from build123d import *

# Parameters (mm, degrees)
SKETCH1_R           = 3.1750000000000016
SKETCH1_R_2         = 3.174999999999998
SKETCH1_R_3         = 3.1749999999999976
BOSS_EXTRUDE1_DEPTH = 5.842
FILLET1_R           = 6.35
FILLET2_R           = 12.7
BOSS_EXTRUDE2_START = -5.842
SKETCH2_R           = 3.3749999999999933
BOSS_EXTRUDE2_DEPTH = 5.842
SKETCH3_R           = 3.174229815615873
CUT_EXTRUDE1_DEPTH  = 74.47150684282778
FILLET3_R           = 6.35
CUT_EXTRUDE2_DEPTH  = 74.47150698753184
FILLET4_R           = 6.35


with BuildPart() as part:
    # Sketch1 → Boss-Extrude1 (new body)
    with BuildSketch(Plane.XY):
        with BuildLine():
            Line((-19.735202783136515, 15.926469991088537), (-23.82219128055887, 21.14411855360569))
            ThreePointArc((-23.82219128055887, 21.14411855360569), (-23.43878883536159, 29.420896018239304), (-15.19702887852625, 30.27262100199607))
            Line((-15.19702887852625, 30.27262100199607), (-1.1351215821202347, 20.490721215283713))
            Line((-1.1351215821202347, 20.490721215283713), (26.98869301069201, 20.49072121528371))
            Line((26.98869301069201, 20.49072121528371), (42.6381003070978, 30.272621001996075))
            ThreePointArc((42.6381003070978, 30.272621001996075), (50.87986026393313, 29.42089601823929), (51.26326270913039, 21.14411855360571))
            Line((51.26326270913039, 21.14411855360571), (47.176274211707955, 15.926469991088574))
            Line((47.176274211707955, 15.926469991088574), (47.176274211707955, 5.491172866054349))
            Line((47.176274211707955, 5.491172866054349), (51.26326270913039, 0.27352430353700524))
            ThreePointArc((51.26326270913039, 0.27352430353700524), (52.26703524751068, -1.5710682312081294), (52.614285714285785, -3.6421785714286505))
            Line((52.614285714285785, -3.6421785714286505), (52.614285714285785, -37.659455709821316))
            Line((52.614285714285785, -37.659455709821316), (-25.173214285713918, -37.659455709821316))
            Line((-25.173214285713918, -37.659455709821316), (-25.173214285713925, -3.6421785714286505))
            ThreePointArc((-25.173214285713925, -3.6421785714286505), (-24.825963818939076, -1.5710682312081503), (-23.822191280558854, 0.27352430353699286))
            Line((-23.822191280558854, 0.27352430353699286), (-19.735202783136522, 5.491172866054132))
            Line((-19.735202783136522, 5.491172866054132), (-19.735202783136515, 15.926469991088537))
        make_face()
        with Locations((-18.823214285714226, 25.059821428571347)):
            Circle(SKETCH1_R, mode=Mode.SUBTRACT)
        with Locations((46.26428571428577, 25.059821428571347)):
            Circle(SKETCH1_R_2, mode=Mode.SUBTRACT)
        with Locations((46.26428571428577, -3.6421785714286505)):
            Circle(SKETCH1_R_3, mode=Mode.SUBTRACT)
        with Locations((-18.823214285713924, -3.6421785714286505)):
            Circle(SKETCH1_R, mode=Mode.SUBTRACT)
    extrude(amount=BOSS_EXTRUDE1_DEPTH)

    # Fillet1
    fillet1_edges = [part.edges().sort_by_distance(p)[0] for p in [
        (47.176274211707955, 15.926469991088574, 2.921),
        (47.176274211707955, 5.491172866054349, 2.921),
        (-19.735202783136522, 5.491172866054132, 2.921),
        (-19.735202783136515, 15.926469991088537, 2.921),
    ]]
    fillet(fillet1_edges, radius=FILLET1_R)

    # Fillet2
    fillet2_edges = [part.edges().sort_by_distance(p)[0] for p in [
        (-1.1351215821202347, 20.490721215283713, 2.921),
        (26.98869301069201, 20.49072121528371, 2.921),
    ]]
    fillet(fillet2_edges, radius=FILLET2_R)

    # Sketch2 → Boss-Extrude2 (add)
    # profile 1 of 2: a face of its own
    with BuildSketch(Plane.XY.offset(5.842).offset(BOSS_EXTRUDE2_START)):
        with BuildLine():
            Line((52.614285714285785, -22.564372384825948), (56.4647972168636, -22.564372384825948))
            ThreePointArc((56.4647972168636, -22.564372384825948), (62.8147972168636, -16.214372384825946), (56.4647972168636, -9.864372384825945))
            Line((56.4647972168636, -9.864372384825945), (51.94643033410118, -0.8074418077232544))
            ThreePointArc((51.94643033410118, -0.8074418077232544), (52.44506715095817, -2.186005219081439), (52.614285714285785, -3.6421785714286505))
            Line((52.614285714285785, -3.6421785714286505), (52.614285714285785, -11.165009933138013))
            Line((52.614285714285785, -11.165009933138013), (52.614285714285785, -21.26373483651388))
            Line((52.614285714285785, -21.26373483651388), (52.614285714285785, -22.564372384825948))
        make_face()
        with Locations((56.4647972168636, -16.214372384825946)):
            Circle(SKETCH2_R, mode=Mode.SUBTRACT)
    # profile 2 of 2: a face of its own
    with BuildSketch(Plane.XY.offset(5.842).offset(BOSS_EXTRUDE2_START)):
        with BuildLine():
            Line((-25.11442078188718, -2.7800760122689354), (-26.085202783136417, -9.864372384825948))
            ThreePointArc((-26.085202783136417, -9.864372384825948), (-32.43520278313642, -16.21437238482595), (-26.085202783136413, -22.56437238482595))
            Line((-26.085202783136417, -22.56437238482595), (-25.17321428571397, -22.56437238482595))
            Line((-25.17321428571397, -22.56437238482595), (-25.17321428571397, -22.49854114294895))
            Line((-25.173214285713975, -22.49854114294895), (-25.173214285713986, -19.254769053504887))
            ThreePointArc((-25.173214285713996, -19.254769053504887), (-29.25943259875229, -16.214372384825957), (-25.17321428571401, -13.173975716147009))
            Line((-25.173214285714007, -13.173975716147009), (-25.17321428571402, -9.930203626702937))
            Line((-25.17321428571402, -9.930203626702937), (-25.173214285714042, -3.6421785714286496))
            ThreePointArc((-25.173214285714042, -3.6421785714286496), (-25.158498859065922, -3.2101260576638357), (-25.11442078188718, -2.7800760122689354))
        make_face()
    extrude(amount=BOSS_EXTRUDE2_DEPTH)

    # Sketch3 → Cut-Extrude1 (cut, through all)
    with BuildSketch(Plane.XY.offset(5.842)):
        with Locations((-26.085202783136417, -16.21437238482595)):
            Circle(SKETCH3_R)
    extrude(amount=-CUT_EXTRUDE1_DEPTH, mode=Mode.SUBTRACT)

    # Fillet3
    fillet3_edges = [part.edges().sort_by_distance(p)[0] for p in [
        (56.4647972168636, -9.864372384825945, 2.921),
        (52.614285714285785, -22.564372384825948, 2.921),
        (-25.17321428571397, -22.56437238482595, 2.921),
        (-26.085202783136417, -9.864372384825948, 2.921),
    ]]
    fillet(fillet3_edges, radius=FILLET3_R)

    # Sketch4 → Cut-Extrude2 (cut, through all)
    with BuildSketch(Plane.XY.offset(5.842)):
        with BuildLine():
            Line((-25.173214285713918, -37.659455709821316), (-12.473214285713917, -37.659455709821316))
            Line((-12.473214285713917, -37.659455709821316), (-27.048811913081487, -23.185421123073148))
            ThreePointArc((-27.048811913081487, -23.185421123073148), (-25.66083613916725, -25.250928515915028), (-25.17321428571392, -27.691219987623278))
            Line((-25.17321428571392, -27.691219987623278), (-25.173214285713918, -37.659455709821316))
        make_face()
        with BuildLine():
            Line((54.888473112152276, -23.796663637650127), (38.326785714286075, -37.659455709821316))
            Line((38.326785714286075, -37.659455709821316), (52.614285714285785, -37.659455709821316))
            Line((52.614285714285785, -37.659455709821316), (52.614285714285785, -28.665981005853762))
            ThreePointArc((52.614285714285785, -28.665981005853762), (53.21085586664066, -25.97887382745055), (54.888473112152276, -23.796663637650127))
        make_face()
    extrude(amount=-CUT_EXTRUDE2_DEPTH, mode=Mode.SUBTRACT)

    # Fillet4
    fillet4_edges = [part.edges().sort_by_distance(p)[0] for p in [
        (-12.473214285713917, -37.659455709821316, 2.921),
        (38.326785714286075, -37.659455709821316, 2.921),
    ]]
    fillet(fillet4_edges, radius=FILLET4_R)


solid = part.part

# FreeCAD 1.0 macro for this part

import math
import FreeCAD as App
import Part
import Sketcher
from FreeCAD import Vector
Q = App.Units.Quantity


def edges_at(feature, points):
    """Names of the edges that pass closest to the given points."""
    edges = feature.Shape.Edges
    near = lambda p: min(range(len(edges)), key=lambda i: edges[i].distToShape(Part.Vertex(*p))[0])
    return sorted({f"Edge{near(p) + 1}" for p in points})

doc = App.newDocument("Part")
params = doc.addObject("Spreadsheet::Sheet", "Params")
for row, (alias, value) in enumerate([
    ("sketch1_diameter", "0.25 in"),
    ("sketch1_radius", "0.25 in"),
    ("sketch1_width", "3.0625 in"),
    ("pad1_length", "0.23 in"),
    ("fillet_radius", "0.25 in"),
    ("fillet2_radius", "0.5 in"),
    ("sketch2_radius", "0.25 in"),
    ("pad2_length", "0.23 in"),
    ("fillet3_radius", "0.25 in"),
    ("sketch4_radius", "0.25 in"),
    ("sketch4_width", "0.5 in"),
    ("sketch4_width2", "0.5625 in"),
    ("fillet4_radius", "0.25 in"),
], start=1):
    params.set(f"A{row}", alias)
    params.set(f"B{row}", "=" + value)
    params.setAlias(f"B{row}", alias)

body = doc.addObject("PartDesign::Body", "Body")

sketch1 = body.newObject("Sketcher::SketchObject", "Sketch")
sketch1.AttachmentSupport = (doc.getObject("XY_Plane"), [""])
sketch1.MapMode = "FlatFace"
sketch1.addGeometry(Part.LineSegment(Vector(-23.8, 21.1, 0), Vector(-19.7, 15.9, 0)), False)
sketch1.addGeometry(Part.LineSegment(Vector(-19.7, 15.9, 0), Vector(-19.7, 5.5, 0)), False)
sketch1.addGeometry(Part.LineSegment(Vector(-19.7, 5.5, 0), Vector(-23.8, 0.3, 0)), False)
sketch1.addGeometry(Part.ArcOfCircle(Part.Circle(Vector(-18.8, -3.6, 0), Vector(0, 0, 1), 6.3), math.radians(142), math.radians(180)), False)
sketch1.addGeometry(Part.LineSegment(Vector(-25.2, -3.6, 0), Vector(-25.2, -37.7, 0)), False)
sketch1.addGeometry(Part.LineSegment(Vector(-25.2, -37.7, 0), Vector(52.6, -37.7, 0)), False)
sketch1.addGeometry(Part.LineSegment(Vector(52.6, -37.7, 0), Vector(52.6, -3.6, 0)), False)
sketch1.addGeometry(Part.ArcOfCircle(Part.Circle(Vector(46.3, -3.6, 0), Vector(0, 0, 1), 6.3), math.radians(0), math.radians(38)), False)
sketch1.addGeometry(Part.LineSegment(Vector(51.3, 0.3, 0), Vector(47.2, 5.5, 0)), False)
sketch1.addGeometry(Part.LineSegment(Vector(47.2, 5.5, 0), Vector(47.2, 15.9, 0)), False)
sketch1.addGeometry(Part.LineSegment(Vector(47.2, 15.9, 0), Vector(51.3, 21.1, 0)), False)
sketch1.addGeometry(Part.ArcOfCircle(Part.Circle(Vector(46.3, 25.1, 0), Vector(0, 0, 1), 6.3), math.radians(-38), math.radians(125)), False)
sketch1.addGeometry(Part.LineSegment(Vector(42.6, 30.3, 0), Vector(27, 20.5, 0)), False)
sketch1.addGeometry(Part.LineSegment(Vector(27, 20.5, 0), Vector(-1.1, 20.5, 0)), False)
sketch1.addGeometry(Part.LineSegment(Vector(-1.1, 20.5, 0), Vector(-15.2, 30.3, 0)), False)
sketch1.addGeometry(Part.ArcOfCircle(Part.Circle(Vector(-18.8, 25.1, 0), Vector(0, 0, 1), 6.3), math.radians(55), math.radians(218)), False)
sketch1.addGeometry(Part.Circle(Vector(46.3, -3.6, 0), Vector(0, 0, 1), 3.2), False)
sketch1.addGeometry(Part.Circle(Vector(-18.8, -3.6, 0), Vector(0, 0, 1), 3.2), False)
sketch1.addGeometry(Part.Circle(Vector(46.3, 25.1, 0), Vector(0, 0, 1), 3.2), False)
sketch1.addGeometry(Part.Circle(Vector(-18.8, 25.1, 0), Vector(0, 0, 1), 3.2), False)
sketch1.addConstraint(Sketcher.Constraint("Coincident", 0, 2, 1, 1))
sketch1.addConstraint(Sketcher.Constraint("Coincident", 1, 2, 2, 1))
sketch1.addConstraint(Sketcher.Constraint("Tangent", 2, 2, 3, 1))
sketch1.addConstraint(Sketcher.Constraint("Tangent", 3, 2, 4, 1))
sketch1.addConstraint(Sketcher.Constraint("Coincident", 4, 2, 5, 1))
sketch1.addConstraint(Sketcher.Constraint("Coincident", 5, 2, 6, 1))
sketch1.addConstraint(Sketcher.Constraint("Tangent", 6, 2, 7, 1))
sketch1.addConstraint(Sketcher.Constraint("Tangent", 7, 2, 8, 1))
sketch1.addConstraint(Sketcher.Constraint("Coincident", 8, 2, 9, 1))
sketch1.addConstraint(Sketcher.Constraint("Coincident", 9, 2, 10, 1))
sketch1.addConstraint(Sketcher.Constraint("Tangent", 10, 2, 11, 1))
sketch1.addConstraint(Sketcher.Constraint("Coincident", 11, 2, 12, 1))
sketch1.addConstraint(Sketcher.Constraint("Coincident", 12, 2, 13, 1))
sketch1.addConstraint(Sketcher.Constraint("Coincident", 13, 2, 14, 1))
sketch1.addConstraint(Sketcher.Constraint("Tangent", 14, 2, 15, 1))
sketch1.addConstraint(Sketcher.Constraint("Tangent", 15, 2, 0, 1))
sketch1.addConstraint(Sketcher.Constraint("Vertical", 1))
sketch1.addConstraint(Sketcher.Constraint("Vertical", 4))
sketch1.addConstraint(Sketcher.Constraint("Horizontal", 5))
sketch1.addConstraint(Sketcher.Constraint("Vertical", 6))
sketch1.addConstraint(Sketcher.Constraint("Vertical", 9))
sketch1.addConstraint(Sketcher.Constraint("Horizontal", 13))
sketch1.addConstraint(Sketcher.Constraint("Coincident", 16, 3, 7, 3))
sketch1.addConstraint(Sketcher.Constraint("Coincident", 17, 3, 3, 3))
sketch1.addConstraint(Sketcher.Constraint("Coincident", 18, 3, 11, 3))
sketch1.addConstraint(Sketcher.Constraint("Coincident", 19, 3, 15, 3))
sketch1.addConstraint(Sketcher.Constraint("Equal", 3, 7))
sketch1.addConstraint(Sketcher.Constraint("Equal", 7, 11))
sketch1.addConstraint(Sketcher.Constraint("Equal", 11, 15))
sketch1.addConstraint(Sketcher.Constraint("Equal", 16, 17))
sketch1.addConstraint(Sketcher.Constraint("Equal", 17, 18))
sketch1.addConstraint(Sketcher.Constraint("Equal", 18, 19))
sketch1.addConstraint(Sketcher.Constraint("Parallel", 0, 8))
sketch1.addConstraint(Sketcher.Constraint("Parallel", 2, 10))
sketch1.addConstraint(Sketcher.Constraint("Horizontal", 3, 3, 7, 3))
sketch1.addConstraint(Sketcher.Constraint("Horizontal", 11, 3, 15, 3))
sketch1.addConstraint(Sketcher.Constraint("Horizontal", 2, 2, 7, 2))
sketch1.addConstraint(Sketcher.Constraint("Horizontal", 1, 2, 8, 2))
sketch1.addConstraint(Sketcher.Constraint("Horizontal", 0, 2, 9, 2))
sketch1.addConstraint(Sketcher.Constraint("Horizontal", 11, 2, 14, 2))
sketch1.addConstraint(Sketcher.Constraint("Vertical", 7, 3, 11, 3))
sketch1.addConstraint(Sketcher.Constraint("Diameter", 16, Q("0.25 in")))
sketch1.addConstraint(Sketcher.Constraint("Radius", 3, Q("0.25 in")))
sketch1.addConstraint(Sketcher.Constraint("DistanceX", 5, 1, 5, 2, Q("3.0625 in")))
sketch1.addConstraint(Sketcher.Constraint("DistanceY", 7, 3, 11, 3, Q("1.13 in")))
sketch1.addConstraint(Sketcher.Constraint("DistanceX", -1, 1, 11, 2, 42.6381))
sketch1.addConstraint(Sketcher.Constraint("DistanceY", 11, 3, 11, 2, 5.2128))
sketch1.addConstraint(Sketcher.Constraint("DistanceY", 12, 2, 11, 2, 9.7819))
sketch1.addConstraint(Sketcher.Constraint("Distance", 0, 6.62777))
sketch1.addConstraint(Sketcher.Constraint("DistanceX", 13, 2, 13, 1, 28.123815))
sketch1.addConstraint(Sketcher.Constraint("DistanceY", 1, 2, 1, 1, 10.435297))
sketch1.addConstraint(Sketcher.Constraint("DistanceY", 4, 2, 4, 1, 34.017277))
sketch1.addConstraint(Sketcher.Constraint("DistanceY", 3, 3, -1, 1, 3.642179))
sketch1.setExpression("Constraints[41]", "Params.sketch1_diameter")
sketch1.setExpression("Constraints[42]", "Params.sketch1_radius")
sketch1.setExpression("Constraints[43]", "Params.sketch1_width")
pad1 = body.newObject("PartDesign::Pad", "Pad")
pad1.Profile = sketch1
pad1.setExpression("Length", "Params.pad1_length")
doc.recompute()

fillet = body.newObject("PartDesign::Fillet", "Fillet")
fillet.Base = (pad1, edges_at(pad1, [
    (47.176, 15.926, 2.921),
    (47.176, 5.491, 2.921),
    (-19.735, 5.491, 2.921),
    (-19.735, 15.926, 2.921),
]))
fillet.setExpression("Radius", "Params.fillet_radius")
doc.recompute()

fillet2 = body.newObject("PartDesign::Fillet", "Fillet001")
fillet2.Base = (fillet, edges_at(fillet, [(-1.135, 20.491, 2.921), (26.989, 20.491, 2.921)]))
fillet2.setExpression("Radius", "Params.fillet2_radius")

sketch2 = body.newObject("Sketcher::SketchObject", "Sketch001")
sketch2.AttachmentSupport = (doc.getObject("XY_Plane"), [""])
sketch2.MapMode = "FlatFace"
sketch2.addGeometry(Part.LineSegment(Vector(52.6, -22.6, 0), Vector(56.5, -22.6, 0)), False)
sketch2.addGeometry(Part.ArcOfCircle(Part.Circle(Vector(56.5, -16.2, 0), Vector(0, 0, 1), 6.3), math.radians(-90), math.radians(90)), False)
sketch2.addGeometry(Part.LineSegment(Vector(56.5, -9.9, 0), Vector(51.9, -0.8, 0)), False)
sketch2.addGeometry(Part.ArcOfCircle(Part.Circle(Vector(46.3, -3.6, 0), Vector(0, 0, 1), 6.3), math.radians(0), math.radians(27)), False)
sketch2.addGeometry(Part.LineSegment(Vector(52.6, -3.6, 0), Vector(52.6, -22.6, 0)), False)
sketch2.addGeometry(Part.Circle(Vector(56.5, -16.2, 0), Vector(0, 0, 1), 3.4), False)
sketch2.addGeometry(Part.LineSegment(Vector(-25.1, -2.8, 0), Vector(-26.1, -9.9, 0)), False)
sketch2.addGeometry(Part.ArcOfCircle(Part.Circle(Vector(-26.1, -16.2, 0), Vector(0, 0, 1), 6.3), math.radians(90), math.radians(270)), False)
sketch2.addGeometry(Part.LineSegment(Vector(-26.1, -22.6, 0), Vector(-25.2, -22.6, 0)), False)
sketch2.addGeometry(Part.LineSegment(Vector(-25.2, -22.6, 0), Vector(-25.2, -19.3, 0)), False)
sketch2.addGeometry(Part.ArcOfCircle(Part.Circle(Vector(-26.1, -16.2, 0), Vector(0, 0, 1), 3.2), math.radians(73), math.radians(287)), False)
sketch2.addGeometry(Part.LineSegment(Vector(-25.2, -13.2, 0), Vector(-25.2, -3.6, 0)), False)
sketch2.addGeometry(Part.ArcOfCircle(Part.Circle(Vector(-18.8, -3.6, 0), Vector(0, 0, 1), 6.3), math.radians(172.2), math.radians(180)), False)
sketch2.addConstraint(Sketcher.Constraint("Tangent", 0, 2, 1, 1))
sketch2.addConstraint(Sketcher.Constraint("Coincident", 1, 2, 2, 1))
sketch2.addConstraint(Sketcher.Constraint("Tangent", 2, 2, 3, 2))
sketch2.addConstraint(Sketcher.Constraint("Tangent", 3, 1, 4, 1))
sketch2.addConstraint(Sketcher.Constraint("Coincident", 4, 2, 0, 1))
sketch2.addConstraint(Sketcher.Constraint("Coincident", 6, 2, 7, 1))
sketch2.addConstraint(Sketcher.Constraint("Tangent", 7, 2, 8, 1))
sketch2.addConstraint(Sketcher.Constraint("Coincident", 8, 2, 9, 1))
sketch2.addConstraint(Sketcher.Constraint("Coincident", 9, 2, 10, 2))
sketch2.addConstraint(Sketcher.Constraint("Coincident", 10, 1, 11, 1))
sketch2.addConstraint(Sketcher.Constraint("Tangent", 11, 2, 12, 2))
sketch2.addConstraint(Sketcher.Constraint("Tangent", 12, 1, 6, 1))
sketch2.addConstraint(Sketcher.Constraint("Horizontal", 0))
sketch2.addConstraint(Sketcher.Constraint("Vertical", 4))
sketch2.addConstraint(Sketcher.Constraint("Horizontal", 8))
sketch2.addConstraint(Sketcher.Constraint("Vertical", 9))
sketch2.addConstraint(Sketcher.Constraint("Vertical", 11))
sketch2.addConstraint(Sketcher.Constraint("Coincident", 5, 3, 1, 3))
sketch2.addConstraint(Sketcher.Constraint("Coincident", 10, 3, 7, 3))
sketch2.addConstraint(Sketcher.Constraint("Equal", 1, 3))
sketch2.addConstraint(Sketcher.Constraint("Equal", 3, 7))
sketch2.addConstraint(Sketcher.Constraint("Equal", 7, 12))
sketch2.addConstraint(Sketcher.Constraint("Horizontal", 5, 3, 7, 3))
sketch2.addConstraint(Sketcher.Constraint("Horizontal", 3, 3, 12, 3))
sketch2.addConstraint(Sketcher.Constraint("Vertical", 0, 2, 1, 2))
sketch2.addConstraint(Sketcher.Constraint("Vertical", 10, 3, 6, 2))
sketch2.addConstraint(Sketcher.Constraint("Vertical", 9, 2, 10, 1))
sketch2.addConstraint(Sketcher.Constraint("Radius", 1, Q("0.25 in")))
sketch2.addConstraint(Sketcher.Constraint("Diameter", 5, 6.75))
sketch2.addConstraint(Sketcher.Constraint("DistanceX", 7, 3, 1, 3, Q("3.25 in")))
sketch2.addConstraint(Sketcher.Constraint("Radius", 10, 3.17423))
sketch2.addConstraint(Sketcher.Constraint("DistanceX", 12, 3, 3, 3, Q("2.5625 in")))
sketch2.addConstraint(Sketcher.Constraint("Distance", 6, 7.150502))
sketch2.addConstraint(Sketcher.Constraint("DistanceX", 0, 1, 0, 2, 3.850512))
sketch2.addConstraint(Sketcher.Constraint("DistanceY", 3, 3, -1, 1, 3.642179))
sketch2.addConstraint(Sketcher.Constraint("DistanceX", -1, 1, 2, 2, 51.94643))
sketch2.setExpression("Constraints[27]", "Params.sketch2_radius")
pad2 = body.newObject("PartDesign::Pad", "Pad001")
pad2.Profile = sketch2
pad2.setExpression("Length", "Params.pad2_length")

sketch3 = body.newObject("Sketcher::SketchObject", "Sketch002")
sketch3.AttachmentSupport = (doc.getObject("XY_Plane"), [""])
sketch3.MapMode = "FlatFace"
sketch3.AttachmentOffset = App.Placement(Vector(0, 0, 0.23 * 25.4), App.Rotation())
sketch3.addGeometry(Part.Circle(Vector(-26.1, -16.2, 0), Vector(0, 0, 1), 3.2), False)
sketch3.addConstraint(Sketcher.Constraint("Diameter", 0, 6.34846))
sketch3.addConstraint(Sketcher.Constraint("DistanceX", 0, 3, -1, 1, 26.085203))
sketch3.addConstraint(Sketcher.Constraint("DistanceY", 0, 3, -1, 1, 16.214372))
pocket1 = body.newObject("PartDesign::Pocket", "Pocket")
pocket1.Profile = sketch3
pocket1.Type = "ThroughAll"
doc.recompute()

fillet3 = body.newObject("PartDesign::Fillet", "Fillet002")
fillet3.Base = (pocket1, edges_at(pocket1, [
    (56.465, -9.864, 2.921),
    (52.614, -22.564, 2.921),
    (-25.173, -22.564, 2.921),
    (-26.085, -9.864, 2.921),
]))
fillet3.setExpression("Radius", "Params.fillet3_radius")

sketch4 = body.newObject("Sketcher::SketchObject", "Sketch003")
sketch4.AttachmentSupport = (doc.getObject("XY_Plane"), [""])
sketch4.MapMode = "FlatFace"
sketch4.AttachmentOffset = App.Placement(Vector(0, 0, 0.23 * 25.4), App.Rotation())
sketch4.addGeometry(Part.LineSegment(Vector(-25.2, -37.7, 0), Vector(-12.5, -37.7, 0)), False)
sketch4.addGeometry(Part.LineSegment(Vector(-12.5, -37.7, 0), Vector(-27, -23.2, 0)), False)
sketch4.addGeometry(Part.ArcOfCircle(Part.Circle(Vector(-31.5, -27.7, 0), Vector(0, 0, 1), 6.3), math.radians(0), math.radians(45)), False)
sketch4.addGeometry(Part.LineSegment(Vector(-25.2, -27.7, 0), Vector(-25.2, -37.7, 0)), False)
sketch4.addGeometry(Part.LineSegment(Vector(54.9, -23.8, 0), Vector(38.3, -37.7, 0)), False)
sketch4.addGeometry(Part.LineSegment(Vector(38.3, -37.7, 0), Vector(52.6, -37.7, 0)), False)
sketch4.addGeometry(Part.LineSegment(Vector(52.6, -37.7, 0), Vector(52.6, -28.7, 0)), False)
sketch4.addGeometry(Part.ArcOfCircle(Part.Circle(Vector(59, -28.7, 0), Vector(0, 0, 1), 6.3), math.radians(130), math.radians(180)), False)
sketch4.addConstraint(Sketcher.Constraint("Coincident", 0, 2, 1, 1))
sketch4.addConstraint(Sketcher.Constraint("Tangent", 1, 2, 2, 2))
sketch4.addConstraint(Sketcher.Constraint("Tangent", 2, 1, 3, 1))
sketch4.addConstraint(Sketcher.Constraint("Coincident", 3, 2, 0, 1))
sketch4.addConstraint(Sketcher.Constraint("Coincident", 4, 2, 5, 1))
sketch4.addConstraint(Sketcher.Constraint("Coincident", 5, 2, 6, 1))
sketch4.addConstraint(Sketcher.Constraint("Tangent", 6, 2, 7, 2))
sketch4.addConstraint(Sketcher.Constraint("Tangent", 7, 1, 4, 1))
sketch4.addConstraint(Sketcher.Constraint("Horizontal", 0))
sketch4.addConstraint(Sketcher.Constraint("Vertical", 3))
sketch4.addConstraint(Sketcher.Constraint("Horizontal", 5))
sketch4.addConstraint(Sketcher.Constraint("Vertical", 6))
sketch4.addConstraint(Sketcher.Constraint("Equal", 2, 7))
sketch4.addConstraint(Sketcher.Constraint("Horizontal", 3, 2, 4, 2))
sketch4.addConstraint(Sketcher.Constraint("Radius", 2, Q("0.25 in")))
sketch4.addConstraint(Sketcher.Constraint("DistanceX", 0, 1, 0, 2, Q("0.5 in")))
sketch4.addConstraint(Sketcher.Constraint("DistanceX", 0, 2, 4, 2, Q("2 in")))
sketch4.addConstraint(Sketcher.Constraint("DistanceX", 5, 1, 5, 2, Q("0.5625 in")))
sketch4.addConstraint(Sketcher.Constraint("DistanceY", 2, 3, 1, 2, 4.505799))
sketch4.addConstraint(Sketcher.Constraint("DistanceY", 6, 1, 6, 2, 8.993475))
sketch4.addConstraint(Sketcher.Constraint("DistanceY", 2, 3, -1, 1, 27.69122))
sketch4.addConstraint(Sketcher.Constraint("DistanceX", 1, 2, -1, 1, 27.048812))
sketch4.setExpression("Constraints[14]", "Params.sketch4_radius")
sketch4.setExpression("Constraints[15]", "Params.sketch4_width")
sketch4.setExpression("Constraints[17]", "Params.sketch4_width2")
pocket2 = body.newObject("PartDesign::Pocket", "Pocket001")
pocket2.Profile = sketch4
pocket2.Type = "ThroughAll"
doc.recompute()

fillet4 = body.newObject("PartDesign::Fillet", "Fillet003")
fillet4.Base = (pocket2, edges_at(pocket2, [(-12.473, -37.659, 2.921), (38.327, -37.659, 2.921)]))
fillet4.setExpression("Radius", "Params.fillet4_radius")

doc.recompute()
